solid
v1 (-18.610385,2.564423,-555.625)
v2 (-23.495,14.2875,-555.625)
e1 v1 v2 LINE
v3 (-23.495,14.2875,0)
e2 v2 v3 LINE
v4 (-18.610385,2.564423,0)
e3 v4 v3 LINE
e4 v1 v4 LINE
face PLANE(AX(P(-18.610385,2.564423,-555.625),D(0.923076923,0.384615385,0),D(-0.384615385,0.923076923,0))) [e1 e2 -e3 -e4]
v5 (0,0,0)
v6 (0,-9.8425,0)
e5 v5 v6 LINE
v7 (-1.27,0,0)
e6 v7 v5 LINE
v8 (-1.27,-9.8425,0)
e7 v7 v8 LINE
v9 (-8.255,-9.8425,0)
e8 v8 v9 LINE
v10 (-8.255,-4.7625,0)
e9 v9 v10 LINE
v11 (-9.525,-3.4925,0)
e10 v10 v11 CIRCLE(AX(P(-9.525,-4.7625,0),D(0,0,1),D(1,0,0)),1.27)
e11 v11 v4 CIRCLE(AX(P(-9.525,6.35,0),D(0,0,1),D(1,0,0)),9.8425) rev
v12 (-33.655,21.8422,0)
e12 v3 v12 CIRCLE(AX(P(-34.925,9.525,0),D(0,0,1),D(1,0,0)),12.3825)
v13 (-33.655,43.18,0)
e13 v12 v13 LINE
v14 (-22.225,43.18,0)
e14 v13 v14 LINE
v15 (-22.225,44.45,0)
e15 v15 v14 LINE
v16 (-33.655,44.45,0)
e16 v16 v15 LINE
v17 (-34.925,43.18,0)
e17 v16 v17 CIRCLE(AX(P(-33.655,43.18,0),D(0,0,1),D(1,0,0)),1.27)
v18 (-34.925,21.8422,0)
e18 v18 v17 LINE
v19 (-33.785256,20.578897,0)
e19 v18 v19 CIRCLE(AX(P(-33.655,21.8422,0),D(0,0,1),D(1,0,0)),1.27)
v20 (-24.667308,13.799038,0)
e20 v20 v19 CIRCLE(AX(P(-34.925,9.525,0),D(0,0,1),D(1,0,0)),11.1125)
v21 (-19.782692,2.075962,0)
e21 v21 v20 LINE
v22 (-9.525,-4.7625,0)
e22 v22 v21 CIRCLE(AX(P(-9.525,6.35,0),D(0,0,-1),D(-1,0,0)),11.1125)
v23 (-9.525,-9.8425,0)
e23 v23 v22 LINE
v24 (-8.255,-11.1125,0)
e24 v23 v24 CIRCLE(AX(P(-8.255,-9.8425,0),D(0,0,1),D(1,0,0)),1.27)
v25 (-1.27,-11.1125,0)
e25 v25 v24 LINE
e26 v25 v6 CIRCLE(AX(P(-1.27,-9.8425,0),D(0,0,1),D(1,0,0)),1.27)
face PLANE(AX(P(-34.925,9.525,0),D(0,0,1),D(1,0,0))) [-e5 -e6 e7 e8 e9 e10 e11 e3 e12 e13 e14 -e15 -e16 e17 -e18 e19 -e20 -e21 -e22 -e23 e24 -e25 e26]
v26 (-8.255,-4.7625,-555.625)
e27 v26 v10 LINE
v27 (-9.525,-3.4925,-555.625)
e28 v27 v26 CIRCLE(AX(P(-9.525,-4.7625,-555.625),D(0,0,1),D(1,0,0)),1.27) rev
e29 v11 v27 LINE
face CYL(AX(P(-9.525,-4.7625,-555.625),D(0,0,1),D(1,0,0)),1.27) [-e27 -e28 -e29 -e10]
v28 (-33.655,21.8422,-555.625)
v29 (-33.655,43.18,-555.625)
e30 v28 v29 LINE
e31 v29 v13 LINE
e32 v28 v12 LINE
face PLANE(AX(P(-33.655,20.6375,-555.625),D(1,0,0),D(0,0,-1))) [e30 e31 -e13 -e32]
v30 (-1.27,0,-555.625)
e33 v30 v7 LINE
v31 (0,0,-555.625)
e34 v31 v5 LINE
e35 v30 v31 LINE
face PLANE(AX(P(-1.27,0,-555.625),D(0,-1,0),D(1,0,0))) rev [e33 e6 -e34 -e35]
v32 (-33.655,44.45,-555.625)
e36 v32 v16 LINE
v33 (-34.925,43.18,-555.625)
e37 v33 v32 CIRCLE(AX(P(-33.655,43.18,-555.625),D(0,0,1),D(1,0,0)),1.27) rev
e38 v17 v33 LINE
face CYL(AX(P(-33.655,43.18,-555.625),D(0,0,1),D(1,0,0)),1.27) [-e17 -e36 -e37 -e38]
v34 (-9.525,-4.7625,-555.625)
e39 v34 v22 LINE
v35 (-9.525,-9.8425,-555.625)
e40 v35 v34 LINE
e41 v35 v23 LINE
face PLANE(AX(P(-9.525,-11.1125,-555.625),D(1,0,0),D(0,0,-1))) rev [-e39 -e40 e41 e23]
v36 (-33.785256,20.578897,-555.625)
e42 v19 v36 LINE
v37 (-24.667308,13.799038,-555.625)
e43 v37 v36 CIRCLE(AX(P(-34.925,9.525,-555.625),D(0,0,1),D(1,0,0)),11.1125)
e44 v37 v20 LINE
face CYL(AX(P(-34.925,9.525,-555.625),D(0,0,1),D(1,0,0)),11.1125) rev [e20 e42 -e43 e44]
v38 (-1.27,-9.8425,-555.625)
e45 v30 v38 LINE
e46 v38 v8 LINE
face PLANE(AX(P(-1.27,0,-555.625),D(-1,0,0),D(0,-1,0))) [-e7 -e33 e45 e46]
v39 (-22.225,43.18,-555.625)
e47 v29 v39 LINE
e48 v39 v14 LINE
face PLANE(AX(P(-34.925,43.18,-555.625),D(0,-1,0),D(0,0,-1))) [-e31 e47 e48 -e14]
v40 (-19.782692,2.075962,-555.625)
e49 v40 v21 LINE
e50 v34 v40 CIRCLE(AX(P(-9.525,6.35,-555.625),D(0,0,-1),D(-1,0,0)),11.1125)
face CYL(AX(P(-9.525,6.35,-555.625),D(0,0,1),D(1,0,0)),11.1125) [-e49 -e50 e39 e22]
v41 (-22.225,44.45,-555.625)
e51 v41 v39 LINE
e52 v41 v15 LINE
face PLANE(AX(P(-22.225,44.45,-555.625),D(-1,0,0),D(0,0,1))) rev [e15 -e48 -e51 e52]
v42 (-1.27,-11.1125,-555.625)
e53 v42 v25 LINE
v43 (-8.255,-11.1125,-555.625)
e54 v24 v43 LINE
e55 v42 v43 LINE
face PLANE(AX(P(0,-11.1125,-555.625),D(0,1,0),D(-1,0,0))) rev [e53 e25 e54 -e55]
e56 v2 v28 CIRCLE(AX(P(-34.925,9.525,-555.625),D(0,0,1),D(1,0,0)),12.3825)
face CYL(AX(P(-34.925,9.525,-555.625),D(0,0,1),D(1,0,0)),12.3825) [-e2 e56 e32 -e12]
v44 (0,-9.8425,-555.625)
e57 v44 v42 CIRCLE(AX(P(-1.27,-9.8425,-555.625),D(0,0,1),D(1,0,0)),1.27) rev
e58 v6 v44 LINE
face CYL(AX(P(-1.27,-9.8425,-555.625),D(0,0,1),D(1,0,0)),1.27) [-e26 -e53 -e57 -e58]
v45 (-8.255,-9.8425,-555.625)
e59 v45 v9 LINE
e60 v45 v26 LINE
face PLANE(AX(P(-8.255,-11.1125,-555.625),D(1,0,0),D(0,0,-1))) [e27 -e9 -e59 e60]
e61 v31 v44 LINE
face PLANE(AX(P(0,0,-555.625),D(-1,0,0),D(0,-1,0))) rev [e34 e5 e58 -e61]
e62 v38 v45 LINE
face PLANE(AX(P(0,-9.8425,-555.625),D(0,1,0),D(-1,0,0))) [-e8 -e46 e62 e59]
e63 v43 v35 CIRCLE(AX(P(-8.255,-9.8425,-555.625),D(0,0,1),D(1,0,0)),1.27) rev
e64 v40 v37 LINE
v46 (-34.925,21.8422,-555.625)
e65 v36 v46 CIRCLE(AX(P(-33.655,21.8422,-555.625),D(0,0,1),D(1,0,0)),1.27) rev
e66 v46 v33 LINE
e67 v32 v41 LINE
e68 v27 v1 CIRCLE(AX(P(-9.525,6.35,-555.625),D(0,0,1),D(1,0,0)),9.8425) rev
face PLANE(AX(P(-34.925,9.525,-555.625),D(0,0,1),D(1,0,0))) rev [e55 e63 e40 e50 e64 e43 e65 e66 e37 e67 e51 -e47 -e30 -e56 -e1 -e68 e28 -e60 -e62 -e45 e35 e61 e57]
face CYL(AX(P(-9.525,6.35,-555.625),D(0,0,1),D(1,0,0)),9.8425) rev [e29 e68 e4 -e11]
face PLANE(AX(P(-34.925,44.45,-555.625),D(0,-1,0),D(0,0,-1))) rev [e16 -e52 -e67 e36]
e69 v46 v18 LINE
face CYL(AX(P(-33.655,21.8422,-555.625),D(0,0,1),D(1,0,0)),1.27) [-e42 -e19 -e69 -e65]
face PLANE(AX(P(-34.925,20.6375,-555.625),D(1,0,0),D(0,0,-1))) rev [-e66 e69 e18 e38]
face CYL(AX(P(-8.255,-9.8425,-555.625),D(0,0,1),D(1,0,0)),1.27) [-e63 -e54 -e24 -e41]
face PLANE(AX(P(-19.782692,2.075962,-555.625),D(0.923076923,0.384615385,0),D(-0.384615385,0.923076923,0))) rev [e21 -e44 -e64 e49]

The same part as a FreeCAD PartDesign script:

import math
import FreeCAD as App
import Part
import Sketcher
from FreeCAD import Vector
Q = App.Units.Quantity


def edges_at(feature, points):
    """Names of the edges that pass closest to the given points."""
    edges = feature.Shape.Edges
    near = lambda p: min(range(len(edges)), key=lambda i: edges[i].distToShape(Part.Vertex(*p))[0])
    return sorted({f"Edge{near(p) + 1}" for p in points})

doc = App.newDocument("Part")
body = doc.addObject("PartDesign::Body", "Body")

sketch1 = doc.addObject("Sketcher::SketchObject", "Sketch")
body.addObject(sketch1)
sketch1.AttachmentSupport = (doc.XY_Plane, [""])
sketch1.MapMode = "FlatFace"
sketch1.addGeometry(Part.LineSegment(Vector(0, -11.1125, 0), Vector(0, 0, 0)), False)
sketch1.addGeometry(Part.LineSegment(Vector(0, 0, 0), Vector(-1.27, 0, 0)), False)
sketch1.addGeometry(Part.LineSegment(Vector(-1.27, 0, 0), Vector(-1.27, -9.8425, 0)), False)
sketch1.addGeometry(Part.LineSegment(Vector(-1.27, -9.8425, 0), Vector(-8.255, -9.8425, 0)), False)
sketch1.addGeometry(Part.LineSegment(Vector(-8.255, -9.8425, 0), Vector(-8.255, -3.410221, 0)), False)
sketch1.addGeometry(Part.ArcOfCircle(Part.Circle(Vector(-9.525, 6.35, 0), Vector(0, 0, 1), 9.8425), math.radians(-157.380135), math.radians(-82.586326)), False)
sketch1.addGeometry(Part.LineSegment(Vector(-18.610385, 2.564423, 0), Vector(-23.495, 14.2875, 0)), False)
sketch1.addGeometry(Part.ArcOfCircle(Part.Circle(Vector(-34.925, 9.525, 0), Vector(0, 0, 1), 12.3825), math.radians(22.619865), math.radians(84.113158)), False)
sketch1.addGeometry(Part.LineSegment(Vector(-33.655, 21.8422, 0), Vector(-33.655, 43.18, 0)), False)
sketch1.addGeometry(Part.LineSegment(Vector(-33.655, 43.18, 0), Vector(-22.225, 43.18, 0)), False)
sketch1.addGeometry(Part.LineSegment(Vector(-22.225, 43.18, 0), Vector(-22.225, 44.45, 0)), False)
sketch1.addGeometry(Part.LineSegment(Vector(-22.225, 44.45, 0), Vector(-34.925, 44.45, 0)), False)
sketch1.addGeometry(Part.LineSegment(Vector(-34.925, 44.45, 0), Vector(-34.925, 20.6375, 0)), False)
sketch1.addGeometry(Part.ArcOfCircle(Part.Circle(Vector(-34.925, 9.525, 0), Vector(0, 0, 1), 11.1125), math.radians(22.619865), math.radians(90)), False)
sketch1.addGeometry(Part.LineSegment(Vector(-24.667308, 13.799038, 0), Vector(-19.782692, 2.075962, 0)), False)
sketch1.addGeometry(Part.ArcOfCircle(Part.Circle(Vector(-9.525, 6.35, 0), Vector(0, 0, 1), 11.1125), math.radians(-157.380135), math.radians(-90)), False)
sketch1.addGeometry(Part.LineSegment(Vector(-9.525, -4.7625, 0), Vector(-9.525, -11.1125, 0)), False)
sketch1.addGeometry(Part.LineSegment(Vector(-9.525, -11.1125, 0), Vector(0, -11.1125, 0)), False)
sketch1.addConstraint(Sketcher.Constraint("Coincident", 0, 2, 1, 1))
sketch1.addConstraint(Sketcher.Constraint("Coincident", 1, 2, 2, 1))
sketch1.addConstraint(Sketcher.Constraint("Coincident", 2, 2, 3, 1))
sketch1.addConstraint(Sketcher.Constraint("Coincident", 3, 2, 4, 1))
sketch1.addConstraint(Sketcher.Constraint("Coincident", 4, 2, 5, 2))
sketch1.addConstraint(Sketcher.Constraint("Tangent", 5, 1, 6, 1))
sketch1.addConstraint(Sketcher.Constraint("Tangent", 6, 2, 7, 1))
sketch1.addConstraint(Sketcher.Constraint("Coincident", 7, 2, 8, 1))
sketch1.addConstraint(Sketcher.Constraint("Coincident", 8, 2, 9, 1))
sketch1.addConstraint(Sketcher.Constraint("Coincident", 9, 2, 10, 1))
sketch1.addConstraint(Sketcher.Constraint("Coincident", 10, 2, 11, 1))
sketch1.addConstraint(Sketcher.Constraint("Coincident", 11, 2, 12, 1))
sketch1.addConstraint(Sketcher.Constraint("Coincident", 12, 2, 13, 2))
sketch1.addConstraint(Sketcher.Constraint("Tangent", 13, 1, 14, 1))
sketch1.addConstraint(Sketcher.Constraint("Tangent", 14, 2, 15, 1))
sketch1.addConstraint(Sketcher.Constraint("Coincident", 15, 2, 16, 1))
sketch1.addConstraint(Sketcher.Constraint("Coincident", 16, 2, 17, 1))
sketch1.addConstraint(Sketcher.Constraint("Coincident", 17, 2, 0, 1))
sketch1.addConstraint(Sketcher.Constraint("Vertical", 0))
sketch1.addConstraint(Sketcher.Constraint("Horizontal", 1))
sketch1.addConstraint(Sketcher.Constraint("Vertical", 2))
sketch1.addConstraint(Sketcher.Constraint("Horizontal", 3))
sketch1.addConstraint(Sketcher.Constraint("Vertical", 4))
sketch1.addConstraint(Sketcher.Constraint("Vertical", 8))
sketch1.addConstraint(Sketcher.Constraint("Horizontal", 9))
sketch1.addConstraint(Sketcher.Constraint("Vertical", 10))
sketch1.addConstraint(Sketcher.Constraint("Horizontal", 11))
sketch1.addConstraint(Sketcher.Constraint("Vertical", 12))
sketch1.addConstraint(Sketcher.Constraint("Vertical", 16))
sketch1.addConstraint(Sketcher.Constraint("Horizontal", 17))
sketch1.addConstraint(Sketcher.Constraint("Coincident", 0, 2, -1, 1))
sketch1.addConstraint(Sketcher.Constraint("Coincident", 13, 3, 7, 3))
sketch1.addConstraint(Sketcher.Constraint("Coincident", 15, 3, 5, 3))
sketch1.addConstraint(Sketcher.Constraint("Equal", 13, 15))
sketch1.addConstraint(Sketcher.Constraint("Parallel", 6, 14))
sketch1.addConstraint(Sketcher.Constraint("Vertical", 13, 3, 11, 2))
sketch1.addConstraint(Sketcher.Constraint("Vertical", 5, 3, 15, 2))
sketch1.addConstraint(Sketcher.Constraint("Equal", 1, 10))
sketch1.addConstraint(Sketcher.Constraint("DistanceX", 11, 2, 11, 1, Q("0.5 in")))
sketch1.addConstraint(Sketcher.Constraint("Radius", 13, Q("0.4375 in")))
sketch1.addConstraint(Sketcher.Constraint("DistanceX", 7, 3, 5, 3, Q("1 in")))
sketch1.addConstraint(Sketcher.Constraint("Distance", 6, Q("0.5 in")))
sketch1.addConstraint(Sketcher.Constraint("DistanceX", 1, 2, 1, 1, Q("0.05 in")))
sketch1.addConstraint(Sketcher.Constraint("DistanceX", 9, 1, 9, 2, Q("0.45 in")))
sketch1.addConstraint(Sketcher.Constraint("DistanceY", 16, 2, 16, 1, Q("0.25 in")))
sketch1.addConstraint(Sketcher.Constraint("DistanceY", -1, 1, 8, 2, Q("1.7 in")))
sketch1.addConstraint(Sketcher.Constraint("Radius", 5, Q("0.3875 in")))
sketch1.addConstraint(Sketcher.Constraint("DistanceY", 3, 2, 15, 2, Q("0.2 in")))
sketch1.addConstraint(Sketcher.Constraint("DistanceX", 3, 2, 3, 1, Q("0.275 in")))
sketch1.addConstraint(Sketcher.Constraint("DistanceX", 17, 1, 17, 2, Q("0.375 in")))
sketch1.addConstraint(Sketcher.Constraint("DistanceY", 0, 1, 0, 2, Q("0.4375 in")))
pad1 = doc.addObject("PartDesign::Pad", "Pad")
body.addObject(pad1)
pad1.Profile = sketch1
pad1.Length = Q("21.875 in")
pad1.Reversed = True
doc.recompute()

fillet = doc.addObject("PartDesign::Fillet", "Fillet")
body.addObject(fillet)
fillet.Base = (pad1, edges_at(pad1, [
    (-8.255, -3.41, -277.812),
    (0, -11.113, -277.812),
    (-9.525, -11.113, -277.812),
    (-34.925, 20.637, -277.812),
    (-34.925, 44.45, -277.812),
]))
fillet.Radius = Q("0.05 in")

doc.recompute()
